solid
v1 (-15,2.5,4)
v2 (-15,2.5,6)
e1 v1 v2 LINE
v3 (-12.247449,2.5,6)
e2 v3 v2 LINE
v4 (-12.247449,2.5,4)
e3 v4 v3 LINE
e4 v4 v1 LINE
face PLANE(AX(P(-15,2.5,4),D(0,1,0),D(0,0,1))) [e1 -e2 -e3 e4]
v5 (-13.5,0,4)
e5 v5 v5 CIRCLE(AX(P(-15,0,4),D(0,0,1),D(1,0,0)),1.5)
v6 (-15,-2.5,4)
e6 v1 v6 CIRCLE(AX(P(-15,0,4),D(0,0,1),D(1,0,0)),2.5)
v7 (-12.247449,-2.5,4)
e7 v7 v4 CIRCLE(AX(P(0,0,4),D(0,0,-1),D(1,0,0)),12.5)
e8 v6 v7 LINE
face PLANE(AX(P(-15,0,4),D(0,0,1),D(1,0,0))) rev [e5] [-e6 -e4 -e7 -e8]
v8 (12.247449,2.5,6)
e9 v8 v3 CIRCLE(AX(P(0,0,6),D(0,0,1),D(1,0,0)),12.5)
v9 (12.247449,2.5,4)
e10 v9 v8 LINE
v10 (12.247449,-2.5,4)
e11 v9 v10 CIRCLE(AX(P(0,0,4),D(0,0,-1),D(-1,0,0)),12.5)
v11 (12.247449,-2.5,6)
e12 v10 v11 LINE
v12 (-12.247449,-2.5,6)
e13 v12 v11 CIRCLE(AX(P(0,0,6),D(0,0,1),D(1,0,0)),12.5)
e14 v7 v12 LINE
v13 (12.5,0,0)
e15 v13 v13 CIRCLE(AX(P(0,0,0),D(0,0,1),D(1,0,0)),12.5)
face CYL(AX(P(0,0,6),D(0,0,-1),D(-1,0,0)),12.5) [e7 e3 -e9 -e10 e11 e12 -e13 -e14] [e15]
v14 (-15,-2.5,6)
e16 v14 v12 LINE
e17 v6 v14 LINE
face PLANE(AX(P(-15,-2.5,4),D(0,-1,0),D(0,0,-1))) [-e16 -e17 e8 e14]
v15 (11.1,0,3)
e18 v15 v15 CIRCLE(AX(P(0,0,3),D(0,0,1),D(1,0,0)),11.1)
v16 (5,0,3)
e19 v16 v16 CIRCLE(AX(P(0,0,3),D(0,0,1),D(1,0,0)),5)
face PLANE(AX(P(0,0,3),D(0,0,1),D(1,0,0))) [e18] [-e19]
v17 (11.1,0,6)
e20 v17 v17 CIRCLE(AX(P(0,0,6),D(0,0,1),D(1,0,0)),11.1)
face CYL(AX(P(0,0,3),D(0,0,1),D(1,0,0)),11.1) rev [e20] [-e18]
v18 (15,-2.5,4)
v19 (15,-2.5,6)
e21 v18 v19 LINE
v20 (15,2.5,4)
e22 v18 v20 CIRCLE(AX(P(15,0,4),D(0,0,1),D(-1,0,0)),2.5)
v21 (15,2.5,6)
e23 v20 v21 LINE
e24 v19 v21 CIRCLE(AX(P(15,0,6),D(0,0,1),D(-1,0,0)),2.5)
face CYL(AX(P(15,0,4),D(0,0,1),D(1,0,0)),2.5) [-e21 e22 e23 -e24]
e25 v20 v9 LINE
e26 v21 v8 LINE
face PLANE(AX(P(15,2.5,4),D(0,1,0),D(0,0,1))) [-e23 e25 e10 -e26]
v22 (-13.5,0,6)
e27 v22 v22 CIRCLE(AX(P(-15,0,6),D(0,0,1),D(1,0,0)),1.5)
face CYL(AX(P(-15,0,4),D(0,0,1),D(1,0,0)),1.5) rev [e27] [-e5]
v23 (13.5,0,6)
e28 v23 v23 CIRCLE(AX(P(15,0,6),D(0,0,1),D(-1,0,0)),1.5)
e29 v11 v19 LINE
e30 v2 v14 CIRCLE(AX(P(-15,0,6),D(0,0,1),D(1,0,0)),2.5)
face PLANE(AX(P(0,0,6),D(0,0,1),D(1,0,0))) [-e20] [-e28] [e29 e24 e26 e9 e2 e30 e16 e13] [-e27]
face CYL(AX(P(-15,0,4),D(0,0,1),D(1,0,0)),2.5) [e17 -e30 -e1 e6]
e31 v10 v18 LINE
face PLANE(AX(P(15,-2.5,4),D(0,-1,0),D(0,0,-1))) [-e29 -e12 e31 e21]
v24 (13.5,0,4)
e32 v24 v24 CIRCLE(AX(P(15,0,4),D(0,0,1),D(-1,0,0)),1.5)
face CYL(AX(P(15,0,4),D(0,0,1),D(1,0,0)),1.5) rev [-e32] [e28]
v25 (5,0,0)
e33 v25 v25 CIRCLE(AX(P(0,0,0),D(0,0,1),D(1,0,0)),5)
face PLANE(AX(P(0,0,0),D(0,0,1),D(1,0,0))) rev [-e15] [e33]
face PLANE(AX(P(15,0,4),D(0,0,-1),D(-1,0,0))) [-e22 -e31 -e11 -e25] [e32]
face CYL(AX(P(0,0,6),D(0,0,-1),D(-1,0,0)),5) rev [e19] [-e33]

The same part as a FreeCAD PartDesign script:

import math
import FreeCAD as App
import Part
import Sketcher

doc = App.newDocument("Part")
body = doc.addObject("PartDesign::Body", "Body")

sketch1 = body.newObject("Sketcher::SketchObject", "Sketch")
sketch1.AttachmentSupport = (doc.getObject("XY_Plane"), [""])
sketch1.MapMode = "FlatFace"
sketch1.addGeometry([
    Part.Circle(App.Vector(0, 0, 0), App.Vector(0, 0, 1), 12.5),
    Part.Circle(App.Vector(0, 0, 0), App.Vector(0, 0, 1), 5),
], False)
sketch1.addConstraint([
    Sketcher.Constraint("Coincident", 0, 3, -1, 1),
    Sketcher.Constraint("Coincident", 1, 3, -1, 1),
    Sketcher.Constraint("Diameter", 0, 25.0),
    Sketcher.Constraint("Diameter", 1, 10.0),
])
pad1 = body.newObject("PartDesign::Pad", "Pad")
pad1.Profile = sketch1
pad1.Length = 6

sketch2 = body.newObject("Sketcher::SketchObject", "Sketch001")
sketch2.AttachmentSupport = (doc.getObject("XY_Plane"), [""])
sketch2.MapMode = "FlatFace"
sketch2.AttachmentOffset = App.Placement(App.Vector(0, 0, 6), App.Rotation())
sketch2.addGeometry(Part.Circle(App.Vector(0, 0, 0), App.Vector(0, 0, 1), 11.1), False)
sketch2.addConstraint([
    Sketcher.Constraint("Coincident", 0, 3, -1, 1),
    Sketcher.Constraint("Diameter", 0, 22.2),
])
pocket1 = body.newObject("PartDesign::Pocket", "Pocket")
pocket1.Profile = sketch2
pocket1.Length = 3

sketch3 = body.newObject("Sketcher::SketchObject", "Sketch002")
sketch3.AttachmentSupport = (doc.getObject("XY_Plane"), [""])
sketch3.MapMode = "FlatFace"
sketch3.AttachmentOffset = App.Placement(App.Vector(0, 0, 4), App.Rotation())
sketch3.addGeometry([
    Part.LineSegment(App.Vector(-12.247449, 2.5, 0), App.Vector(-15, 2.5, 0)),
    Part.ArcOfCircle(Part.Circle(App.Vector(-15, 0, 0), App.Vector(0, 0, 1), 2.5), math.radians(90), math.radians(270)),
    Part.LineSegment(App.Vector(-15, -2.5, 0), App.Vector(-12.247449, -2.5, 0)),
    Part.ArcOfCircle(Part.Circle(App.Vector(0, 0, 0), App.Vector(0, 0, 1), 12.5), math.radians(168.463041), math.radians(191.536959)),
    Part.Circle(App.Vector(-15, 0, 0), App.Vector(0, 0, 1), 1.5),
    Part.LineSegment(App.Vector(12.247449, -2.5, 0), App.Vector(15, -2.5, 0)),
    Part.ArcOfCircle(Part.Circle(App.Vector(15, 0, 0), App.Vector(0, 0, 1), 2.5), math.radians(-90), math.radians(90)),
    Part.LineSegment(App.Vector(15, 2.5, 0), App.Vector(12.247449, 2.5, 0)),
    Part.ArcOfCircle(Part.Circle(App.Vector(0, 0, 0), App.Vector(0, 0, 1), 12.5), math.radians(-11.536959), math.radians(11.536959)),
    Part.Circle(App.Vector(15, 0, 0), App.Vector(0, 0, 1), 1.5),
], False)
sketch3.addConstraint([
    Sketcher.Constraint("Tangent", 0, 2, 1, 1),
    Sketcher.Constraint("Tangent", 1, 2, 2, 1),
    Sketcher.Constraint("Coincident", 2, 2, 3, 2),
    Sketcher.Constraint("Coincident", 3, 1, 0, 1),
    Sketcher.Constraint("Tangent", 5, 2, 6, 1),
    Sketcher.Constraint("Tangent", 6, 2, 7, 1),
    Sketcher.Constraint("Coincident", 7, 2, 8, 2),
    Sketcher.Constraint("Coincident", 8, 1, 5, 1),
    Sketcher.Constraint("Horizontal", 0),
    Sketcher.Constraint("Horizontal", 2),
    Sketcher.Constraint("Horizontal", 5),
    Sketcher.Constraint("Horizontal", 7),
    Sketcher.Constraint("Coincident", 3, 3, -1, 1),
    Sketcher.Constraint("Coincident", 8, 3, -1, 1),
    Sketcher.Constraint("Coincident", 4, 3, 1, 3),
    Sketcher.Constraint("Coincident", 9, 3, 6, 3),
    Sketcher.Constraint("Equal", 1, 6),
    Sketcher.Constraint("Equal", 3, 8),
    Sketcher.Constraint("Equal", 4, 9),
    Sketcher.Constraint("Symmetric", 1, 3, 6, 3, -1, 1),
    Sketcher.Constraint("PointOnObject", 1, 3, -1),
    Sketcher.Constraint("Diameter", 4, 3.0),
    Sketcher.Constraint("Radius", 1, 2.5),
    Sketcher.Constraint("Radius", 3, 12.5),
    Sketcher.Constraint("DistanceX", 1, 3, -1, 1, 15.0),
])
pad2 = body.newObject("PartDesign::Pad", "Pad001")
pad2.Profile = sketch3
pad2.Length = 2

doc.recompute()
